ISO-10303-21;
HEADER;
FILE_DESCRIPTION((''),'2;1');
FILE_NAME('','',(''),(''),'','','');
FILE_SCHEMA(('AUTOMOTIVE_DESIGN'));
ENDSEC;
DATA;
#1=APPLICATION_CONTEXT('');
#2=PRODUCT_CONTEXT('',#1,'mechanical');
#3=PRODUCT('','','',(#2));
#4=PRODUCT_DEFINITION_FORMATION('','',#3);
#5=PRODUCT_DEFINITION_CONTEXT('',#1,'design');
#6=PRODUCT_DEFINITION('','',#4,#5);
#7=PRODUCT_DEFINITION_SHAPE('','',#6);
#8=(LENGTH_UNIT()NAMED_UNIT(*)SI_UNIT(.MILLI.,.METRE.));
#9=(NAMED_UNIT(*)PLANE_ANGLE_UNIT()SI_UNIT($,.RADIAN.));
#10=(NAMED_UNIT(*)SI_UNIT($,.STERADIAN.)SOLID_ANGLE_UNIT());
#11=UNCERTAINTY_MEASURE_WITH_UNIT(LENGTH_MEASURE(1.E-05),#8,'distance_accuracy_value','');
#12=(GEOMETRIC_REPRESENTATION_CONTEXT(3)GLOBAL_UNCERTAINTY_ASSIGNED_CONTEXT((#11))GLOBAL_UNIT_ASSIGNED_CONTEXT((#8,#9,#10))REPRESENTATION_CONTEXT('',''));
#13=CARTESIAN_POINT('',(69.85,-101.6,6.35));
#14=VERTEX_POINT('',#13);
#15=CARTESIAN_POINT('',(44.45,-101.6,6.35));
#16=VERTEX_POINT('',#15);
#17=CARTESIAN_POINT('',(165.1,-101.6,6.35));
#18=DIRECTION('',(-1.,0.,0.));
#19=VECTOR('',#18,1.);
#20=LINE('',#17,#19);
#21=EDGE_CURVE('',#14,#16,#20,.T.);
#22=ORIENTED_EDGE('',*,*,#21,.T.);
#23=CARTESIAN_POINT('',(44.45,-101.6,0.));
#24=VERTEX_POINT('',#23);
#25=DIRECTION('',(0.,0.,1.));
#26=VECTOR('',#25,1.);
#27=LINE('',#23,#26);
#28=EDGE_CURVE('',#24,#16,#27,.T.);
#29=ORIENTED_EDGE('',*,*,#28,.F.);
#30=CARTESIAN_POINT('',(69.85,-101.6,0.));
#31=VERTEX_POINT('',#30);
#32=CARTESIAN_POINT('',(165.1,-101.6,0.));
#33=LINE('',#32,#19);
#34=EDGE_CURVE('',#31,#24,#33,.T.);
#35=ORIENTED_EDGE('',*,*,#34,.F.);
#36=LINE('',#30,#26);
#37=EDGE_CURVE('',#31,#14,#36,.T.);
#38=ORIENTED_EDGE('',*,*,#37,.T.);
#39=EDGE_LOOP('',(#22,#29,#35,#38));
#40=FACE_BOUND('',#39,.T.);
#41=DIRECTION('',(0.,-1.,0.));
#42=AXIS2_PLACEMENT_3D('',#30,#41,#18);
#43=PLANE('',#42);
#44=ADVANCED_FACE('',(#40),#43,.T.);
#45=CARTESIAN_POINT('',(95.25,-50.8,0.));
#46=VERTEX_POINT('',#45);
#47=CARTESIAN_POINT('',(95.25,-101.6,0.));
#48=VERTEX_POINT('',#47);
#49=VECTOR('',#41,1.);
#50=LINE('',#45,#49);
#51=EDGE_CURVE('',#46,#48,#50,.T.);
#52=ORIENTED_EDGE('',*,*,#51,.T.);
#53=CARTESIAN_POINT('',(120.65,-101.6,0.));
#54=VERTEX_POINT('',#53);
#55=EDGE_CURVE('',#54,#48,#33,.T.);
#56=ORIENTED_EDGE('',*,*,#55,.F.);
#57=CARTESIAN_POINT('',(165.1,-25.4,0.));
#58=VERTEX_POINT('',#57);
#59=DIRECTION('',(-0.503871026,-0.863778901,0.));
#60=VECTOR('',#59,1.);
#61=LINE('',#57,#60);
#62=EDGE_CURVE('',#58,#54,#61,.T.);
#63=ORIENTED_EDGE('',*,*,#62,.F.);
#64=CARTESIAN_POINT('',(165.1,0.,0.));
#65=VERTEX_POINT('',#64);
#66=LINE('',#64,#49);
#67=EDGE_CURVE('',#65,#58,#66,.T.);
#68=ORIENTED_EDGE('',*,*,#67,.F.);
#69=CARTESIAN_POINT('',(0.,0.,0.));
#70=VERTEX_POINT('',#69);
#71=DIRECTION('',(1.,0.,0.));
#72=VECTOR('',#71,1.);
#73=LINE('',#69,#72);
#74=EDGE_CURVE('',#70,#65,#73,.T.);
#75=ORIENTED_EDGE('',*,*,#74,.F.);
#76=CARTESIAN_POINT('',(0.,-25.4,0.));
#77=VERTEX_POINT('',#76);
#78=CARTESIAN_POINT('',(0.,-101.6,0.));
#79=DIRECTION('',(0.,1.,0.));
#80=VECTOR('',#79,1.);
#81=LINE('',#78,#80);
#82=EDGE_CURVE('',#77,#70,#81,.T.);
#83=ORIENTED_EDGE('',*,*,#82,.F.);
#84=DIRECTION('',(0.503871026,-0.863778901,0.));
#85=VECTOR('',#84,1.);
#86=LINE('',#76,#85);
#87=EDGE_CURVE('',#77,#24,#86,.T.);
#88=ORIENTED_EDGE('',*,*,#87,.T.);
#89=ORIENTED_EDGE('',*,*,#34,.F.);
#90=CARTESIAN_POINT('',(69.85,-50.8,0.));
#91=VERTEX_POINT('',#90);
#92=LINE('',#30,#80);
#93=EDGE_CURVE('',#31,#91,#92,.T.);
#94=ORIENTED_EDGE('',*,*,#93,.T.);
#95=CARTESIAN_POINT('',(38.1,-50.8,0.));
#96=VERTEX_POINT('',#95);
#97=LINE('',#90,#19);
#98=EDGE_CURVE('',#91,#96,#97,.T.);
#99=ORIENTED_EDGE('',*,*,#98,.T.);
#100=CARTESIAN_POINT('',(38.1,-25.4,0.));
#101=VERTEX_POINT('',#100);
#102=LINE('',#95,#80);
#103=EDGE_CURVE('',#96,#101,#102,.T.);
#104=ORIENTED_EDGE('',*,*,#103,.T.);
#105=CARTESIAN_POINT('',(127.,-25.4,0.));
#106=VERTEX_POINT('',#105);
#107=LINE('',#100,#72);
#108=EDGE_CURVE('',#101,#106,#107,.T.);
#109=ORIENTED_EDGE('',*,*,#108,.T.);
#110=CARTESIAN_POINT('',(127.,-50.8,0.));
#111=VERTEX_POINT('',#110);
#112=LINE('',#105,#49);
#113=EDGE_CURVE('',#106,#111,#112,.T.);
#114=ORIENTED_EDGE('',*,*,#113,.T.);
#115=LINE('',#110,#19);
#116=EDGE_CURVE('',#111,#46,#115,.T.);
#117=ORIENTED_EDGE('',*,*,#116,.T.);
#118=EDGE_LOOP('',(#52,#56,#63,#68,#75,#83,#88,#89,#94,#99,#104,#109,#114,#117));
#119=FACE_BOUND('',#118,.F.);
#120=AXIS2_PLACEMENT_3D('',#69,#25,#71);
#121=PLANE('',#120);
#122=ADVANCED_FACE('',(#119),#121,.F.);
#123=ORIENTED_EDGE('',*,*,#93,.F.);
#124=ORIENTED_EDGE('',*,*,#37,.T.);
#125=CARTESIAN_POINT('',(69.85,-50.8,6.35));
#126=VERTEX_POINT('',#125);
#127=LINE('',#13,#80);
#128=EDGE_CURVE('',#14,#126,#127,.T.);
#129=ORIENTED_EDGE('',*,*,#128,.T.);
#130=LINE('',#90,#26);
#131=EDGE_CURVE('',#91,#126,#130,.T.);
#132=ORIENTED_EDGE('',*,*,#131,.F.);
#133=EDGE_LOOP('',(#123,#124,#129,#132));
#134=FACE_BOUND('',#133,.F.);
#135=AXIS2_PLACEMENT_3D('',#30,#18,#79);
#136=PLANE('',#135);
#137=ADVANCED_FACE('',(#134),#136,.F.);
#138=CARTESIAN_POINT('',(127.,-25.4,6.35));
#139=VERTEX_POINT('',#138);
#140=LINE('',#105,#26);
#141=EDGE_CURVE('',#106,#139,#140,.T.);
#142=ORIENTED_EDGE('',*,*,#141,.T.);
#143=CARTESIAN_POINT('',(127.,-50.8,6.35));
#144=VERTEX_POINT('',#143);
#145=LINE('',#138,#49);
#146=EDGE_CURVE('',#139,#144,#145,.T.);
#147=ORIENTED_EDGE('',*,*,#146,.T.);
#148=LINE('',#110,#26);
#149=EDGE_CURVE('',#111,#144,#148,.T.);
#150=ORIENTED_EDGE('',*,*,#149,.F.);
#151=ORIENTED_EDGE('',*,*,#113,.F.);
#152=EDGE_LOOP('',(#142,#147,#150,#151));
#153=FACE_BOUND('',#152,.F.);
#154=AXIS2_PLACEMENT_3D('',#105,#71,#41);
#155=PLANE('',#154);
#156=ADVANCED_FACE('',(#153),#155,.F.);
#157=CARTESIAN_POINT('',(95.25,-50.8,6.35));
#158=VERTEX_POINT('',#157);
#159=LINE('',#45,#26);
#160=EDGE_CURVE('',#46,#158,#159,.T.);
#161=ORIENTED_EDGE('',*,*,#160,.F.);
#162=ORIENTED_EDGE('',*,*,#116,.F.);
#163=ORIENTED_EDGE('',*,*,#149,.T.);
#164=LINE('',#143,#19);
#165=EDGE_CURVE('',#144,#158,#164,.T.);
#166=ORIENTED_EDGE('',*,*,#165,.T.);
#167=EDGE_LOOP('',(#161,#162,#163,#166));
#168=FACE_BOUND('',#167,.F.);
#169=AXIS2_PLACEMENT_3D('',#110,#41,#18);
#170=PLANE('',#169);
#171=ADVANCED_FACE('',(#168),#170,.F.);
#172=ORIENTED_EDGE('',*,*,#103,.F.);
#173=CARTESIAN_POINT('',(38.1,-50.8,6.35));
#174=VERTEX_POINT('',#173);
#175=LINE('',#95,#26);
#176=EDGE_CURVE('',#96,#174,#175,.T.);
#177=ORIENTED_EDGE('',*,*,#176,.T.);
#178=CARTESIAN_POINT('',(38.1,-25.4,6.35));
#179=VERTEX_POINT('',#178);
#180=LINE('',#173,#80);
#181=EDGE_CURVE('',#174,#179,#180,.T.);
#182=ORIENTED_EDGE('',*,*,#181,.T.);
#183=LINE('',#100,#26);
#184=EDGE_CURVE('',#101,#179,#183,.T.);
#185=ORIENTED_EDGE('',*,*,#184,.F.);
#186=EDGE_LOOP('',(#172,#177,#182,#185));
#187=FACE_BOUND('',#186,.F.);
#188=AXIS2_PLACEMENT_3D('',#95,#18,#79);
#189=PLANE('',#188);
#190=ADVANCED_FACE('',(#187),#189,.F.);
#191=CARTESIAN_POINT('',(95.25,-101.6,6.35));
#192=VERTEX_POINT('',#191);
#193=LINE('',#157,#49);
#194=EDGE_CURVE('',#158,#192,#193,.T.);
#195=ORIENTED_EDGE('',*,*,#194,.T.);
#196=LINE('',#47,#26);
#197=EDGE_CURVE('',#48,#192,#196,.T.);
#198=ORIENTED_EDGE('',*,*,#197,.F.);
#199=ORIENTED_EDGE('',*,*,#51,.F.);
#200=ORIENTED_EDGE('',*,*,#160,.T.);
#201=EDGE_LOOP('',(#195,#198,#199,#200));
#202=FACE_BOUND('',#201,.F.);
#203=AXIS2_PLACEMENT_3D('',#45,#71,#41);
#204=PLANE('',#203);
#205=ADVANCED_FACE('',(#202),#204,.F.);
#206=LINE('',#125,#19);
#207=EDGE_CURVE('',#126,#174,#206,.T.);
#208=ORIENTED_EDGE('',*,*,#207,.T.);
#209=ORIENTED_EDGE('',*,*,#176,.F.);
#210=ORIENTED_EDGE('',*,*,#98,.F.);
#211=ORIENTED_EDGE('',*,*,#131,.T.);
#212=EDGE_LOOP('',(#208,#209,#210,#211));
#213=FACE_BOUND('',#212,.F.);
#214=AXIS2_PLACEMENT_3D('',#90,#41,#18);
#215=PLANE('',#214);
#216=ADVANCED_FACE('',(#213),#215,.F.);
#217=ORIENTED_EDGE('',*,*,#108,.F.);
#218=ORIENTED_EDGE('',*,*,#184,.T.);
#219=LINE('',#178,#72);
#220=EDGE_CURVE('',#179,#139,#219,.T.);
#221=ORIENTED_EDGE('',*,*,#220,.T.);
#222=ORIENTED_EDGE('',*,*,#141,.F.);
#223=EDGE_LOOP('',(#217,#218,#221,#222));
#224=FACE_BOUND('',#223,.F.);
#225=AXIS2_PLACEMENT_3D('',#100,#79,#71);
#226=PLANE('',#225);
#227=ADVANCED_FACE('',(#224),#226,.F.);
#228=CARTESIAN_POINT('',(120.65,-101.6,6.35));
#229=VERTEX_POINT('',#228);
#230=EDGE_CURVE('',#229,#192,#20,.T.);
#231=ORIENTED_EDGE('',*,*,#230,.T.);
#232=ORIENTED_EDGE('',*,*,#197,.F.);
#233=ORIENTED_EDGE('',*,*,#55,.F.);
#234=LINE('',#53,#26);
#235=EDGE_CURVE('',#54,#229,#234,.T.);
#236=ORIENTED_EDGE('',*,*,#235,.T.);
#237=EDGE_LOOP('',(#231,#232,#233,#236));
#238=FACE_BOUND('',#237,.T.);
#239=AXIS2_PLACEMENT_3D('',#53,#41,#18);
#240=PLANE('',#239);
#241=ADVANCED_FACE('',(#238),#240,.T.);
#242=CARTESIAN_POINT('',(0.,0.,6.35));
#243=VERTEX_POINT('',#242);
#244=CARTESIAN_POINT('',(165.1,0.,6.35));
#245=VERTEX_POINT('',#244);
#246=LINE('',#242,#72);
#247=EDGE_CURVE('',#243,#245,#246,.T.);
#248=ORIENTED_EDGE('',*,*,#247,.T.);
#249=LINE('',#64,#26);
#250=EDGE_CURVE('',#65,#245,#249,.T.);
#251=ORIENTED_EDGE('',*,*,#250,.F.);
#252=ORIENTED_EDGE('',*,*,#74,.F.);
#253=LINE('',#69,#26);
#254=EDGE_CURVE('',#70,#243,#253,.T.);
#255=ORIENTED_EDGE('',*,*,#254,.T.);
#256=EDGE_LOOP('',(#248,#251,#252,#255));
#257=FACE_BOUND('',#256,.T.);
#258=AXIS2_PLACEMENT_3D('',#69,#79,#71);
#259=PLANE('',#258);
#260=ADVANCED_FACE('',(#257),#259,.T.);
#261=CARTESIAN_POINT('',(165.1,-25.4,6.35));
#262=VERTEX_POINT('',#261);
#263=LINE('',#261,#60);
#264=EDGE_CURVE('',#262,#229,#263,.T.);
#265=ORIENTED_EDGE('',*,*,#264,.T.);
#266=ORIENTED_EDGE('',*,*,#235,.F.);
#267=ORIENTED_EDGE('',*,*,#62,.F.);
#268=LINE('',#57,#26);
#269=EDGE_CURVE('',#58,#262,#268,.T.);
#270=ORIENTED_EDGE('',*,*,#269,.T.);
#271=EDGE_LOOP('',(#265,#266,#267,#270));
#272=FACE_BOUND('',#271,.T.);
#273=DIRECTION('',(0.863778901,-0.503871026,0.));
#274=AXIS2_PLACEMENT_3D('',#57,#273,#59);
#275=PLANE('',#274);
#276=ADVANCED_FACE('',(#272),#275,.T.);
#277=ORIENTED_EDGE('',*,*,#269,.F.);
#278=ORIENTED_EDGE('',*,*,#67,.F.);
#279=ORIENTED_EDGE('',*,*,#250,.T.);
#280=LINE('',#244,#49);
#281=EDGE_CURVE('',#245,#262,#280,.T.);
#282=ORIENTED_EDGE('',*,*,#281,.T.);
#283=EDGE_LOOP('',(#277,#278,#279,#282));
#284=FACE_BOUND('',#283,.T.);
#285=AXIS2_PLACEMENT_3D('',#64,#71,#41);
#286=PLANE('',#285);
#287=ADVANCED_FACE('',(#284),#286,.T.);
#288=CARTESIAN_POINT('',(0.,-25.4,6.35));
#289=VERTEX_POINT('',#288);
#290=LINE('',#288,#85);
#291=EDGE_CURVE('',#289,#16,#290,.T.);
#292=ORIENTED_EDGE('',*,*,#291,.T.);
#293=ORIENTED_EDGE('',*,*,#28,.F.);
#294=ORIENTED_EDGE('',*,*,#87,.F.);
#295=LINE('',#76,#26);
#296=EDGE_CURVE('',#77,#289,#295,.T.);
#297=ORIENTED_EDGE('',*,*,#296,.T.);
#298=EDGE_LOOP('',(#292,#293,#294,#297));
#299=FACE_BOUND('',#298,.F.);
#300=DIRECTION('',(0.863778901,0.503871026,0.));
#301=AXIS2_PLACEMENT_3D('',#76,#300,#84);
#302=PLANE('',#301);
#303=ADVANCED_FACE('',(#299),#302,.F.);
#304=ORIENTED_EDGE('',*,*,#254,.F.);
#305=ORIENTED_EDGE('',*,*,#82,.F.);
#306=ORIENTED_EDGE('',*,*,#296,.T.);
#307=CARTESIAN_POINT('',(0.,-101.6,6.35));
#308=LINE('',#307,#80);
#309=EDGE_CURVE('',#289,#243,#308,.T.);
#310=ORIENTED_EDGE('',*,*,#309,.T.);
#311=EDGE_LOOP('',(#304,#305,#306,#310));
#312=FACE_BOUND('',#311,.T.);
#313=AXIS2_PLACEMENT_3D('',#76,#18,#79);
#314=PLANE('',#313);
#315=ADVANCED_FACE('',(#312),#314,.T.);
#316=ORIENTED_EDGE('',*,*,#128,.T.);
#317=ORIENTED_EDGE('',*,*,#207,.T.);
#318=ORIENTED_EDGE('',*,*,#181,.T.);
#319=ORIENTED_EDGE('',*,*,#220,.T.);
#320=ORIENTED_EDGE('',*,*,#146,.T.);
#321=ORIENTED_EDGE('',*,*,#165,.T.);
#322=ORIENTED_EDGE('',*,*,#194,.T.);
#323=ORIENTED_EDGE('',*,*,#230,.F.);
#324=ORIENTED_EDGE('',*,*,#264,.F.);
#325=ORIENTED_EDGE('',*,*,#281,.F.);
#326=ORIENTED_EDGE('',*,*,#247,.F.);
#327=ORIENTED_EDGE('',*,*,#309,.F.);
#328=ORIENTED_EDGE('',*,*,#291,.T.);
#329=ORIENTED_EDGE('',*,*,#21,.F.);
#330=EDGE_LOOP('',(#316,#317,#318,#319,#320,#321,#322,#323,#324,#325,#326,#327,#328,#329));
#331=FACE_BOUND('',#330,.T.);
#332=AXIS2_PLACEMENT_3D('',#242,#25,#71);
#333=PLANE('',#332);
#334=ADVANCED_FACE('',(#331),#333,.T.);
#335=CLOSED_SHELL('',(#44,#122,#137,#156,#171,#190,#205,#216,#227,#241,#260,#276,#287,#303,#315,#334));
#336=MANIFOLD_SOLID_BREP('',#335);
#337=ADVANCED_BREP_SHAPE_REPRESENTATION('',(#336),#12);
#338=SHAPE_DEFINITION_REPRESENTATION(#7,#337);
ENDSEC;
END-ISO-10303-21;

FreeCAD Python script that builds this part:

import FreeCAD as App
import Part
import Sketcher
from FreeCAD import Vector
Q = App.Units.Quantity

doc = App.newDocument("Part")
params = doc.addObject("Spreadsheet::Sheet", "Params")
for row, (alias, value) in enumerate([
    ("sketch1_width", "1 in"),
    ("sketch1_width2", "6.5 in"),
    ("sketch1_width3", "3.5 in"),
    ("pad1_length", "0.25 in"),
], start=1):
    params.set(f"A{row}", alias)
    params.set(f"B{row}", "=" + value)
    params.setAlias(f"B{row}", alias)

body = doc.addObject("PartDesign::Body", "Body")

# Sketch on XY plane
sketch1 = doc.addObject("Sketcher::SketchObject", "Sketch")
body.addObject(sketch1)
sketch1.AttachmentSupport = (doc.XY_Plane, [""])
sketch1.MapMode = "FlatFace"
sketch1.addGeometry(Part.LineSegment(Vector(165.1, 0, 0), Vector(0, 0, 0)), False)
sketch1.addGeometry(Part.LineSegment(Vector(0, 0, 0), Vector(0, -25.4, 0)), False)
sketch1.addGeometry(Part.LineSegment(Vector(0, -25.4, 0), Vector(44.45, -101.6, 0)), False)
sketch1.addGeometry(Part.LineSegment(Vector(44.45, -101.6, 0), Vector(69.85, -101.6, 0)), False)
sketch1.addGeometry(Part.LineSegment(Vector(69.85, -101.6, 0), Vector(69.85, -50.8, 0)), False)
sketch1.addGeometry(Part.LineSegment(Vector(69.85, -50.8, 0), Vector(38.1, -50.8, 0)), False)
sketch1.addGeometry(Part.LineSegment(Vector(38.1, -50.8, 0), Vector(38.1, -25.4, 0)), False)
sketch1.addGeometry(Part.LineSegment(Vector(38.1, -25.4, 0), Vector(127, -25.4, 0)), False)
sketch1.addGeometry(Part.LineSegment(Vector(127, -25.4, 0), Vector(127, -50.8, 0)), False)
sketch1.addGeometry(Part.LineSegment(Vector(127, -50.8, 0), Vector(95.25, -50.8, 0)), False)
sketch1.addGeometry(Part.LineSegment(Vector(95.25, -50.8, 0), Vector(95.25, -101.6, 0)), False)
sketch1.addGeometry(Part.LineSegment(Vector(95.25, -101.6, 0), Vector(120.65, -101.6, 0)), False)
sketch1.addGeometry(Part.LineSegment(Vector(120.65, -101.6, 0), Vector(165.1, -25.4, 0)), False)
sketch1.addGeometry(Part.LineSegment(Vector(165.1, -25.4, 0), Vector(165.1, 0, 0)), False)
sketch1.addConstraint(Sketcher.Constraint("Coincident", 0, 2, 1, 1))
sketch1.addConstraint(Sketcher.Constraint("Coincident", 1, 2, 2, 1))
sketch1.addConstraint(Sketcher.Constraint("Coincident", 2, 2, 3, 1))
sketch1.addConstraint(Sketcher.Constraint("Coincident", 3, 2, 4, 1))
sketch1.addConstraint(Sketcher.Constraint("Coincident", 4, 2, 5, 1))
sketch1.addConstraint(Sketcher.Constraint("Coincident", 5, 2, 6, 1))
sketch1.addConstraint(Sketcher.Constraint("Coincident", 6, 2, 7, 1))
sketch1.addConstraint(Sketcher.Constraint("Coincident", 7, 2, 8, 1))
sketch1.addConstraint(Sketcher.Constraint("Coincident", 8, 2, 9, 1))
sketch1.addConstraint(Sketcher.Constraint("Coincident", 9, 2, 10, 1))
sketch1.addConstraint(Sketcher.Constraint("Coincident", 10, 2, 11, 1))
sketch1.addConstraint(Sketcher.Constraint("Coincident", 11, 2, 12, 1))
sketch1.addConstraint(Sketcher.Constraint("Coincident", 12, 2, 13, 1))
sketch1.addConstraint(Sketcher.Constraint("Coincident", 13, 2, 0, 1))
sketch1.addConstraint(Sketcher.Constraint("Horizontal", 0))
sketch1.addConstraint(Sketcher.Constraint("Vertical", 1))
sketch1.addConstraint(Sketcher.Constraint("Horizontal", 3))
sketch1.addConstraint(Sketcher.Constraint("Vertical", 4))
sketch1.addConstraint(Sketcher.Constraint("Horizontal", 5))
sketch1.addConstraint(Sketcher.Constraint("Vertical", 6))
sketch1.addConstraint(Sketcher.Constraint("Horizontal", 7))
sketch1.addConstraint(Sketcher.Constraint("Vertical", 8))
sketch1.addConstraint(Sketcher.Constraint("Horizontal", 9))
sketch1.addConstraint(Sketcher.Constraint("Vertical", 10))
sketch1.addConstraint(Sketcher.Constraint("Horizontal", 11))
sketch1.addConstraint(Sketcher.Constraint("Vertical", 13))
sketch1.addConstraint(Sketcher.Constraint("Coincident", 0, 2, -1, 1))
sketch1.addConstraint(Sketcher.Constraint("Horizontal", 1, 2, 6, 2))
sketch1.addConstraint(Sketcher.Constraint("Horizontal", 5, 2, 8, 2))
sketch1.addConstraint(Sketcher.Constraint("Horizontal", 3, 2, 10, 2))
sketch1.addConstraint(Sketcher.Constraint("Horizontal", 7, 2, 12, 2))
sketch1.addConstraint(Sketcher.Constraint("Equal", 5, 9))
sketch1.addConstraint(Sketcher.Constraint("Equal", 3, 11))
sketch1.addConstraint(Sketcher.Constraint("Equal", 11, 1))
sketch1.addConstraint(Sketcher.Constraint("Equal", 1, 6))
sketch1.addConstraint(Sketcher.Constraint("Equal", 2, 12))
sketch1.addConstraint(Sketcher.Constraint("DistanceX", 3, 1, 3, 2, Q("1 in")))
sketch1.addConstraint(Sketcher.Constraint("DistanceX", 0, 2, 0, 1, Q("6.5 in")))
sketch1.addConstraint(Sketcher.Constraint("DistanceX", 7, 1, 7, 2, Q("3.5 in")))
sketch1.addConstraint(Sketcher.Constraint("DistanceY", 2, 2, -1, 1, Q("4 in")))
sketch1.addConstraint(Sketcher.Constraint("DistanceX", 4, 2, 9, 2, Q("1 in")))
sketch1.setExpression("Constraints[36]", "Params.sketch1_width")
sketch1.setExpression("Constraints[37]", "Params.sketch1_width2")
sketch1.setExpression("Constraints[38]", "Params.sketch1_width3")
pad1 = doc.addObject("PartDesign::Pad", "Pad")
body.addObject(pad1)
pad1.Profile = sketch1
pad1.setExpression("Length", "Params.pad1_length")

doc.recompute()
